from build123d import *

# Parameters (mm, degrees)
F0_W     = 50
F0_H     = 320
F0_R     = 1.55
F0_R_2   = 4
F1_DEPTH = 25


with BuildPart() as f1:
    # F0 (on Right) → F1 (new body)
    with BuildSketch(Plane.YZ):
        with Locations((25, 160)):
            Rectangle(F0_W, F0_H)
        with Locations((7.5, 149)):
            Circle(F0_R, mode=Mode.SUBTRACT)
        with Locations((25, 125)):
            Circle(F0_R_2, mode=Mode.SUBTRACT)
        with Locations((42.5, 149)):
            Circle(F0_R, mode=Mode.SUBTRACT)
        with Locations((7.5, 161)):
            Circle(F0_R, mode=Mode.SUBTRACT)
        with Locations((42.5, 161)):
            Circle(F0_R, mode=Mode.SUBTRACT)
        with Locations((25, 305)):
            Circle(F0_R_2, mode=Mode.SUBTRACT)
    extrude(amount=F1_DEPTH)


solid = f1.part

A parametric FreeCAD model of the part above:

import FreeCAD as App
import Part
import Sketcher

V = App.Vector
Q = App.Units.Quantity


def add_polygon(sketch, points):
    """Adds a closed chain of lines whose ends are joined by coincident constraints."""
    first, n = sketch.GeometryCount, len(points)
    for a, b in zip(points, points[1:] + points[:1]):
        sketch.addGeometry(Part.LineSegment(App.Vector(*a, 0), App.Vector(*b, 0)), False)
    for i in range(n):
        sketch.addConstraint(Sketcher.Constraint("Coincident", first + i, 2, first + (i + 1) % n, 1))

doc = App.newDocument("Part")
body = doc.addObject("PartDesign::Body", "Body")

sketch1 = body.newObject("Sketcher::SketchObject", "Sketch")
sketch1.AttachmentSupport = (doc.getObject("YZ_Plane"), [""])
sketch1.MapMode = "FlatFace"
add_polygon(sketch1, [(0, 320), (0, 0), (50, 0), (50, 320)])
sketch1.addGeometry(Part.Circle(V(7.5, 149, 0), V(0, 0, 1), 1.6), False)
sketch1.addGeometry(Part.Circle(V(7.5, 161, 0), V(0, 0, 1), 1.6), False)
sketch1.addGeometry(Part.Circle(V(25, 125, 0), V(0, 0, 1), 4), False)
sketch1.addGeometry(Part.Circle(V(42.5, 149, 0), V(0, 0, 1), 1.6), False)
sketch1.addGeometry(Part.Circle(V(42.5, 161, 0), V(0, 0, 1), 1.6), False)
sketch1.addGeometry(Part.Circle(V(25, 305, 0), V(0, 0, 1), 4), False)
sketch1.addConstraint([
    Sketcher.Constraint("Vertical", 0),
    Sketcher.Constraint("Horizontal", 1),
    Sketcher.Constraint("Vertical", 2),
    Sketcher.Constraint("Horizontal", 3),
    Sketcher.Constraint("Coincident", 0, 2, -1, 1),
    Sketcher.Constraint("Equal", 4, 5),
    Sketcher.Constraint("Equal", 5, 7),
    Sketcher.Constraint("Equal", 7, 8),
    Sketcher.Constraint("Equal", 6, 9),
    Sketcher.Constraint("Horizontal", 4, 3, 7, 3),
    Sketcher.Constraint("Horizontal", 5, 3, 8, 3),
    Sketcher.Constraint("Vertical", 4, 3, 5, 3),
    Sketcher.Constraint("Vertical", 7, 3, 8, 3),
    Sketcher.Constraint("Vertical", 6, 3, 9, 3),
    Sketcher.Constraint("Diameter", 6, Q("8 mm")),
    Sketcher.Constraint("Diameter", 4, Q("3.1 mm")),
    Sketcher.Constraint("DistanceX", 1, 1, 1, 2, Q("50 mm")),
    Sketcher.Constraint("DistanceY", 0, 2, 0, 1, Q("320 mm")),
    Sketcher.Constraint("DistanceY", -1, 1, 4, 3, Q("149 mm")),
    Sketcher.Constraint("DistanceY", -1, 1, 5, 3, Q("161 mm")),
    Sketcher.Constraint("DistanceX", -1, 1, 6, 3, Q("25 mm")),
    Sketcher.Constraint("DistanceY", -1, 1, 6, 3, Q("125 mm")),
    Sketcher.Constraint("DistanceY", -1, 1, 9, 3, Q("305 mm")),
    Sketcher.Constraint("DistanceX", 4, 3, 7, 3, Q("35 mm")),
    Sketcher.Constraint("DistanceX", -1, 1, 4, 3, Q("7.5 mm")),
])
pad1 = body.newObject("PartDesign::Pad", "Pad")
pad1.Profile = sketch1
pad1.Length = 25

doc.recompute()
